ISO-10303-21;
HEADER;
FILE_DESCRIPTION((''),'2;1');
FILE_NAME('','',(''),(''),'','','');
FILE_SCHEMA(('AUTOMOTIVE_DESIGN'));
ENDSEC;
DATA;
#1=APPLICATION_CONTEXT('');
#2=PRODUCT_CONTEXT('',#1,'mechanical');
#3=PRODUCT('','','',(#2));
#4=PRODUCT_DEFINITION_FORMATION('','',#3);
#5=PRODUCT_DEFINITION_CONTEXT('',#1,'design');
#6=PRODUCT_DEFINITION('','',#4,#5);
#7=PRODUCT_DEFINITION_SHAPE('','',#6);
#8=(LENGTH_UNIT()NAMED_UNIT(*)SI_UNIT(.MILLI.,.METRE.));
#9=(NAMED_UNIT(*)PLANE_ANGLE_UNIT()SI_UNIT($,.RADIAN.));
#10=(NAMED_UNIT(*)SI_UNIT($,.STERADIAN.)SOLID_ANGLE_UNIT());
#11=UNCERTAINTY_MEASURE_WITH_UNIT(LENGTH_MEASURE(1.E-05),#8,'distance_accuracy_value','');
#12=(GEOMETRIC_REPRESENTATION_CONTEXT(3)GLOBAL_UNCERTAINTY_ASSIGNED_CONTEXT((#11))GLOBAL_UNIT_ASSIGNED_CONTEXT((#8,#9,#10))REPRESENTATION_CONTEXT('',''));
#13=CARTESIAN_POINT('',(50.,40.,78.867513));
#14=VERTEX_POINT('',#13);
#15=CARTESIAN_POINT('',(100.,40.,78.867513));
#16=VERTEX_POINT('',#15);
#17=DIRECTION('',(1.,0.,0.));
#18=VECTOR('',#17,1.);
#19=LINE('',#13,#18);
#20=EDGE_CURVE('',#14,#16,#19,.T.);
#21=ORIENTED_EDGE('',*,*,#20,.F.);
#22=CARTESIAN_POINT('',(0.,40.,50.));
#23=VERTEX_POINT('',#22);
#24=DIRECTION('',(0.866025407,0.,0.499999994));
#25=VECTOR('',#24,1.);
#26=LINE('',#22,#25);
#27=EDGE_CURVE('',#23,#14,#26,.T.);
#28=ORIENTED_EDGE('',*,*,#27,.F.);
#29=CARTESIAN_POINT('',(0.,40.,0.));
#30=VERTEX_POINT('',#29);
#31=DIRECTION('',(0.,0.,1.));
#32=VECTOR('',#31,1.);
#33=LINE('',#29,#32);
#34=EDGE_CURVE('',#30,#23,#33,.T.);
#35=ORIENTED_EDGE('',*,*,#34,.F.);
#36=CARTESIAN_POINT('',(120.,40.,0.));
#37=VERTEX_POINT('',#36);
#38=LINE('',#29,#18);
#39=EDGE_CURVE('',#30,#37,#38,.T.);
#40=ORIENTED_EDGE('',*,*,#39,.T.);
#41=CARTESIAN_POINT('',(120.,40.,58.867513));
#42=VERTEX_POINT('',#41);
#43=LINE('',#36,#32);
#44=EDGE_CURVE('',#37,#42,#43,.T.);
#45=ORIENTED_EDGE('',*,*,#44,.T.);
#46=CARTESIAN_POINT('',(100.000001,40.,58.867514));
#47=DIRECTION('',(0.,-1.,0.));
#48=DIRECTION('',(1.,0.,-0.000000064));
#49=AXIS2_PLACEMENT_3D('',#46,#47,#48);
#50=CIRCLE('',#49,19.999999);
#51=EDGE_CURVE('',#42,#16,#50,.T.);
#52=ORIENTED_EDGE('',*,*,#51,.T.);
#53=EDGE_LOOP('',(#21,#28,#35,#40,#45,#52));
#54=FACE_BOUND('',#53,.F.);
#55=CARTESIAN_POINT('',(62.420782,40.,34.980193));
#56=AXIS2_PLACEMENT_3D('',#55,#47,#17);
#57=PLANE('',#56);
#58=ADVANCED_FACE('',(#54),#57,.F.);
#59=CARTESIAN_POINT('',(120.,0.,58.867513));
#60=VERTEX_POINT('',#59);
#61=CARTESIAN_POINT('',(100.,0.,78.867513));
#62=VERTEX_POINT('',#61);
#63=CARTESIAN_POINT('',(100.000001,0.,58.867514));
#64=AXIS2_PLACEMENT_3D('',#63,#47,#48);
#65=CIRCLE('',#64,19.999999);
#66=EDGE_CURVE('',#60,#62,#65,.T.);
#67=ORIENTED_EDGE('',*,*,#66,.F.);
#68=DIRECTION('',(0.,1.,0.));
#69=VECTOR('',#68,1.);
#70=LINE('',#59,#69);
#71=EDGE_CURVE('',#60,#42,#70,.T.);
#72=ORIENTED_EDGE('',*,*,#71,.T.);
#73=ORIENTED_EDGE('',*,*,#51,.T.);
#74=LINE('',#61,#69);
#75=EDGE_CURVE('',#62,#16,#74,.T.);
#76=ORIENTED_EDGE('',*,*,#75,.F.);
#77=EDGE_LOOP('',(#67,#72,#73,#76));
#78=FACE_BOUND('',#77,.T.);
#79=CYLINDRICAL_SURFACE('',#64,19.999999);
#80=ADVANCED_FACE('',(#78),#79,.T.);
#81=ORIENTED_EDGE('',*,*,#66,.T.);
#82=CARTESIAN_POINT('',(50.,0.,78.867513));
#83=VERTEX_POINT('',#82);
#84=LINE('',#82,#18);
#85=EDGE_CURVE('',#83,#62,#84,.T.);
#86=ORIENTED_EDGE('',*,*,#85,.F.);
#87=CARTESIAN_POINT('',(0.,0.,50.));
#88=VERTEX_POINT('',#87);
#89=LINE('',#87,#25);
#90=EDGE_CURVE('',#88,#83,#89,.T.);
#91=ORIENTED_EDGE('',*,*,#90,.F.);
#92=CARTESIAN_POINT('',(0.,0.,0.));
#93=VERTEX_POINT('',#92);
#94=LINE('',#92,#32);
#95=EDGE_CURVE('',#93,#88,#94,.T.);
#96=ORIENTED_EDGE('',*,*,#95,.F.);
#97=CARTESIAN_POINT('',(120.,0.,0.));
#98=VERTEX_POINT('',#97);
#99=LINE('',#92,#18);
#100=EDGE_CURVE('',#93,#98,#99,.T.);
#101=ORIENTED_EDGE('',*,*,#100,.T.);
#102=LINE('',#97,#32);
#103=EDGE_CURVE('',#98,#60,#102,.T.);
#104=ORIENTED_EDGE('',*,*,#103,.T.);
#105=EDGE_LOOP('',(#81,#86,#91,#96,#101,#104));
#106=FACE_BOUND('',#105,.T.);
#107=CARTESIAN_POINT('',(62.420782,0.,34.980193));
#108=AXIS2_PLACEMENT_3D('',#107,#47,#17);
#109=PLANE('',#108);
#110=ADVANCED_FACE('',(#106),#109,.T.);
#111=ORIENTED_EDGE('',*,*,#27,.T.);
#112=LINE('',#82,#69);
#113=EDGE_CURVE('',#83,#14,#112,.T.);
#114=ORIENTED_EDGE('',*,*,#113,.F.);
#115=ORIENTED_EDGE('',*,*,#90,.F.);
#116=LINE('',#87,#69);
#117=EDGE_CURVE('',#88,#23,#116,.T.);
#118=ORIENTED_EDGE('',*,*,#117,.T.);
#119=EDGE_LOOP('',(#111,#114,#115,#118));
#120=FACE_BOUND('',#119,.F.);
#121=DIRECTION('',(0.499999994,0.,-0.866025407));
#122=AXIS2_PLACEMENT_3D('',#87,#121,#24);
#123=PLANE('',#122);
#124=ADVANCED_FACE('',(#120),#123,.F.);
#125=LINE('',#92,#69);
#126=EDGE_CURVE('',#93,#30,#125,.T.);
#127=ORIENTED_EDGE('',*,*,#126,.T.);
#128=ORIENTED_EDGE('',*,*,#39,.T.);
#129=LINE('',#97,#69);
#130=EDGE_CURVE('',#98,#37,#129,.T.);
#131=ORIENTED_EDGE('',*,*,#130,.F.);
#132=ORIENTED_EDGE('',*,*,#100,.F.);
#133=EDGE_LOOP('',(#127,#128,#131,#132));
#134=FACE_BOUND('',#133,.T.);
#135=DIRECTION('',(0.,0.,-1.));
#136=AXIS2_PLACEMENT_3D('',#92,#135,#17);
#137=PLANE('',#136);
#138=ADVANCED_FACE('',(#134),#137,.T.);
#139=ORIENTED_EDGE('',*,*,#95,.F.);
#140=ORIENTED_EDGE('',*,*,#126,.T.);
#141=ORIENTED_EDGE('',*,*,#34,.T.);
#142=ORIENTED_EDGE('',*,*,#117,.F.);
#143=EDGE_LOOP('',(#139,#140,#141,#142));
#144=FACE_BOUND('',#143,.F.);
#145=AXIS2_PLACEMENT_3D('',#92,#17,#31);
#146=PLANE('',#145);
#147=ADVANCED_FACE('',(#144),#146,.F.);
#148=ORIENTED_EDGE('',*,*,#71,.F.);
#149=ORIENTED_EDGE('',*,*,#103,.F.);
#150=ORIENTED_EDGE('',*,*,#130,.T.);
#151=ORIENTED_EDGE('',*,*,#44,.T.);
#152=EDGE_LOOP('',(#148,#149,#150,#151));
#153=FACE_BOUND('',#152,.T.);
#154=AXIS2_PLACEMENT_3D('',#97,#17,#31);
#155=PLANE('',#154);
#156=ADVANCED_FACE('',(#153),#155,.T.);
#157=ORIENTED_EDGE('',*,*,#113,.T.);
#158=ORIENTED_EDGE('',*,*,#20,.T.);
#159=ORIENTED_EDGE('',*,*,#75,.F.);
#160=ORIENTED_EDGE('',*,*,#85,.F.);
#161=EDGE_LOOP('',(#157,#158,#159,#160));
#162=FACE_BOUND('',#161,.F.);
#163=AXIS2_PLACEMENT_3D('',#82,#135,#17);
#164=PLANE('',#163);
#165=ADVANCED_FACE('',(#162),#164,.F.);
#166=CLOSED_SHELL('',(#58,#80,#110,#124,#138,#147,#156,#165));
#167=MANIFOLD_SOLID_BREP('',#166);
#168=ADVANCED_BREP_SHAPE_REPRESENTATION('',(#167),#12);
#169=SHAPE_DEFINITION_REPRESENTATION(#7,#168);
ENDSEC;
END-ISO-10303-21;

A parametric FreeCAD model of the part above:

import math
import FreeCAD as App
import Part
import Sketcher

V = App.Vector
Q = App.Units.Quantity

doc = App.newDocument("Part")
body = doc.addObject("PartDesign::Body", "Body")

# Sketch on XZ plane
sketch1 = body.newObject("Sketcher::SketchObject", "Sketch")
sketch1.AttachmentSupport = (doc.getObject("XZ_Plane"), [""])
sketch1.MapMode = "FlatFace"
sketch1.addGeometry(Part.LineSegment(V(0, 0, 0), V(120, 0, 0)), False)
sketch1.addGeometry(Part.LineSegment(V(120, 0, 0), V(120, 59, 0)), False)
sketch1.addGeometry(Part.ArcOfCircle(Part.Circle(V(100, 59, 0), V(0, 0, 1), 20), math.radians(0), math.radians(90)), False)
sketch1.addGeometry(Part.LineSegment(V(100, 79, 0), V(50, 79, 0)), False)
sketch1.addGeometry(Part.LineSegment(V(50, 79, 0), V(0, 50, 0)), False)
sketch1.addGeometry(Part.LineSegment(V(0, 50, 0), V(0, 0, 0)), False)
sketch1.addConstraint(Sketcher.Constraint("Coincident", 0, 2, 1, 1))
sketch1.addConstraint(Sketcher.Constraint("Tangent", 1, 2, 2, 1))
sketch1.addConstraint(Sketcher.Constraint("Tangent", 2, 2, 3, 1))
sketch1.addConstraint(Sketcher.Constraint("Coincident", 3, 2, 4, 1))
sketch1.addConstraint(Sketcher.Constraint("Coincident", 4, 2, 5, 1))
sketch1.addConstraint(Sketcher.Constraint("Coincident", 5, 2, 0, 1))
sketch1.addConstraint(Sketcher.Constraint("Horizontal", 0))
sketch1.addConstraint(Sketcher.Constraint("Vertical", 1))
sketch1.addConstraint(Sketcher.Constraint("Horizontal", 3))
sketch1.addConstraint(Sketcher.Constraint("Vertical", 5))
sketch1.addConstraint(Sketcher.Constraint("Coincident", 5, 2, -1, 1))
sketch1.addConstraint(Sketcher.Constraint("Equal", 3, 5))
sketch1.addConstraint(Sketcher.Constraint("Radius", 2, 19.999999))
sketch1.addConstraint(Sketcher.Constraint("DistanceX", 0, 1, 0, 2, 120.0))
sketch1.addConstraint(Sketcher.Constraint("DistanceX", 3, 2, 3, 1, 50.0))
sketch1.addConstraint(Sketcher.Constraint("Angle", 4, Q("-150 deg")))
pad1 = body.newObject("PartDesign::Pad", "Pad")
pad1.Profile = sketch1
pad1.Length = 40
pad1.Reversed = True

doc.recompute()
